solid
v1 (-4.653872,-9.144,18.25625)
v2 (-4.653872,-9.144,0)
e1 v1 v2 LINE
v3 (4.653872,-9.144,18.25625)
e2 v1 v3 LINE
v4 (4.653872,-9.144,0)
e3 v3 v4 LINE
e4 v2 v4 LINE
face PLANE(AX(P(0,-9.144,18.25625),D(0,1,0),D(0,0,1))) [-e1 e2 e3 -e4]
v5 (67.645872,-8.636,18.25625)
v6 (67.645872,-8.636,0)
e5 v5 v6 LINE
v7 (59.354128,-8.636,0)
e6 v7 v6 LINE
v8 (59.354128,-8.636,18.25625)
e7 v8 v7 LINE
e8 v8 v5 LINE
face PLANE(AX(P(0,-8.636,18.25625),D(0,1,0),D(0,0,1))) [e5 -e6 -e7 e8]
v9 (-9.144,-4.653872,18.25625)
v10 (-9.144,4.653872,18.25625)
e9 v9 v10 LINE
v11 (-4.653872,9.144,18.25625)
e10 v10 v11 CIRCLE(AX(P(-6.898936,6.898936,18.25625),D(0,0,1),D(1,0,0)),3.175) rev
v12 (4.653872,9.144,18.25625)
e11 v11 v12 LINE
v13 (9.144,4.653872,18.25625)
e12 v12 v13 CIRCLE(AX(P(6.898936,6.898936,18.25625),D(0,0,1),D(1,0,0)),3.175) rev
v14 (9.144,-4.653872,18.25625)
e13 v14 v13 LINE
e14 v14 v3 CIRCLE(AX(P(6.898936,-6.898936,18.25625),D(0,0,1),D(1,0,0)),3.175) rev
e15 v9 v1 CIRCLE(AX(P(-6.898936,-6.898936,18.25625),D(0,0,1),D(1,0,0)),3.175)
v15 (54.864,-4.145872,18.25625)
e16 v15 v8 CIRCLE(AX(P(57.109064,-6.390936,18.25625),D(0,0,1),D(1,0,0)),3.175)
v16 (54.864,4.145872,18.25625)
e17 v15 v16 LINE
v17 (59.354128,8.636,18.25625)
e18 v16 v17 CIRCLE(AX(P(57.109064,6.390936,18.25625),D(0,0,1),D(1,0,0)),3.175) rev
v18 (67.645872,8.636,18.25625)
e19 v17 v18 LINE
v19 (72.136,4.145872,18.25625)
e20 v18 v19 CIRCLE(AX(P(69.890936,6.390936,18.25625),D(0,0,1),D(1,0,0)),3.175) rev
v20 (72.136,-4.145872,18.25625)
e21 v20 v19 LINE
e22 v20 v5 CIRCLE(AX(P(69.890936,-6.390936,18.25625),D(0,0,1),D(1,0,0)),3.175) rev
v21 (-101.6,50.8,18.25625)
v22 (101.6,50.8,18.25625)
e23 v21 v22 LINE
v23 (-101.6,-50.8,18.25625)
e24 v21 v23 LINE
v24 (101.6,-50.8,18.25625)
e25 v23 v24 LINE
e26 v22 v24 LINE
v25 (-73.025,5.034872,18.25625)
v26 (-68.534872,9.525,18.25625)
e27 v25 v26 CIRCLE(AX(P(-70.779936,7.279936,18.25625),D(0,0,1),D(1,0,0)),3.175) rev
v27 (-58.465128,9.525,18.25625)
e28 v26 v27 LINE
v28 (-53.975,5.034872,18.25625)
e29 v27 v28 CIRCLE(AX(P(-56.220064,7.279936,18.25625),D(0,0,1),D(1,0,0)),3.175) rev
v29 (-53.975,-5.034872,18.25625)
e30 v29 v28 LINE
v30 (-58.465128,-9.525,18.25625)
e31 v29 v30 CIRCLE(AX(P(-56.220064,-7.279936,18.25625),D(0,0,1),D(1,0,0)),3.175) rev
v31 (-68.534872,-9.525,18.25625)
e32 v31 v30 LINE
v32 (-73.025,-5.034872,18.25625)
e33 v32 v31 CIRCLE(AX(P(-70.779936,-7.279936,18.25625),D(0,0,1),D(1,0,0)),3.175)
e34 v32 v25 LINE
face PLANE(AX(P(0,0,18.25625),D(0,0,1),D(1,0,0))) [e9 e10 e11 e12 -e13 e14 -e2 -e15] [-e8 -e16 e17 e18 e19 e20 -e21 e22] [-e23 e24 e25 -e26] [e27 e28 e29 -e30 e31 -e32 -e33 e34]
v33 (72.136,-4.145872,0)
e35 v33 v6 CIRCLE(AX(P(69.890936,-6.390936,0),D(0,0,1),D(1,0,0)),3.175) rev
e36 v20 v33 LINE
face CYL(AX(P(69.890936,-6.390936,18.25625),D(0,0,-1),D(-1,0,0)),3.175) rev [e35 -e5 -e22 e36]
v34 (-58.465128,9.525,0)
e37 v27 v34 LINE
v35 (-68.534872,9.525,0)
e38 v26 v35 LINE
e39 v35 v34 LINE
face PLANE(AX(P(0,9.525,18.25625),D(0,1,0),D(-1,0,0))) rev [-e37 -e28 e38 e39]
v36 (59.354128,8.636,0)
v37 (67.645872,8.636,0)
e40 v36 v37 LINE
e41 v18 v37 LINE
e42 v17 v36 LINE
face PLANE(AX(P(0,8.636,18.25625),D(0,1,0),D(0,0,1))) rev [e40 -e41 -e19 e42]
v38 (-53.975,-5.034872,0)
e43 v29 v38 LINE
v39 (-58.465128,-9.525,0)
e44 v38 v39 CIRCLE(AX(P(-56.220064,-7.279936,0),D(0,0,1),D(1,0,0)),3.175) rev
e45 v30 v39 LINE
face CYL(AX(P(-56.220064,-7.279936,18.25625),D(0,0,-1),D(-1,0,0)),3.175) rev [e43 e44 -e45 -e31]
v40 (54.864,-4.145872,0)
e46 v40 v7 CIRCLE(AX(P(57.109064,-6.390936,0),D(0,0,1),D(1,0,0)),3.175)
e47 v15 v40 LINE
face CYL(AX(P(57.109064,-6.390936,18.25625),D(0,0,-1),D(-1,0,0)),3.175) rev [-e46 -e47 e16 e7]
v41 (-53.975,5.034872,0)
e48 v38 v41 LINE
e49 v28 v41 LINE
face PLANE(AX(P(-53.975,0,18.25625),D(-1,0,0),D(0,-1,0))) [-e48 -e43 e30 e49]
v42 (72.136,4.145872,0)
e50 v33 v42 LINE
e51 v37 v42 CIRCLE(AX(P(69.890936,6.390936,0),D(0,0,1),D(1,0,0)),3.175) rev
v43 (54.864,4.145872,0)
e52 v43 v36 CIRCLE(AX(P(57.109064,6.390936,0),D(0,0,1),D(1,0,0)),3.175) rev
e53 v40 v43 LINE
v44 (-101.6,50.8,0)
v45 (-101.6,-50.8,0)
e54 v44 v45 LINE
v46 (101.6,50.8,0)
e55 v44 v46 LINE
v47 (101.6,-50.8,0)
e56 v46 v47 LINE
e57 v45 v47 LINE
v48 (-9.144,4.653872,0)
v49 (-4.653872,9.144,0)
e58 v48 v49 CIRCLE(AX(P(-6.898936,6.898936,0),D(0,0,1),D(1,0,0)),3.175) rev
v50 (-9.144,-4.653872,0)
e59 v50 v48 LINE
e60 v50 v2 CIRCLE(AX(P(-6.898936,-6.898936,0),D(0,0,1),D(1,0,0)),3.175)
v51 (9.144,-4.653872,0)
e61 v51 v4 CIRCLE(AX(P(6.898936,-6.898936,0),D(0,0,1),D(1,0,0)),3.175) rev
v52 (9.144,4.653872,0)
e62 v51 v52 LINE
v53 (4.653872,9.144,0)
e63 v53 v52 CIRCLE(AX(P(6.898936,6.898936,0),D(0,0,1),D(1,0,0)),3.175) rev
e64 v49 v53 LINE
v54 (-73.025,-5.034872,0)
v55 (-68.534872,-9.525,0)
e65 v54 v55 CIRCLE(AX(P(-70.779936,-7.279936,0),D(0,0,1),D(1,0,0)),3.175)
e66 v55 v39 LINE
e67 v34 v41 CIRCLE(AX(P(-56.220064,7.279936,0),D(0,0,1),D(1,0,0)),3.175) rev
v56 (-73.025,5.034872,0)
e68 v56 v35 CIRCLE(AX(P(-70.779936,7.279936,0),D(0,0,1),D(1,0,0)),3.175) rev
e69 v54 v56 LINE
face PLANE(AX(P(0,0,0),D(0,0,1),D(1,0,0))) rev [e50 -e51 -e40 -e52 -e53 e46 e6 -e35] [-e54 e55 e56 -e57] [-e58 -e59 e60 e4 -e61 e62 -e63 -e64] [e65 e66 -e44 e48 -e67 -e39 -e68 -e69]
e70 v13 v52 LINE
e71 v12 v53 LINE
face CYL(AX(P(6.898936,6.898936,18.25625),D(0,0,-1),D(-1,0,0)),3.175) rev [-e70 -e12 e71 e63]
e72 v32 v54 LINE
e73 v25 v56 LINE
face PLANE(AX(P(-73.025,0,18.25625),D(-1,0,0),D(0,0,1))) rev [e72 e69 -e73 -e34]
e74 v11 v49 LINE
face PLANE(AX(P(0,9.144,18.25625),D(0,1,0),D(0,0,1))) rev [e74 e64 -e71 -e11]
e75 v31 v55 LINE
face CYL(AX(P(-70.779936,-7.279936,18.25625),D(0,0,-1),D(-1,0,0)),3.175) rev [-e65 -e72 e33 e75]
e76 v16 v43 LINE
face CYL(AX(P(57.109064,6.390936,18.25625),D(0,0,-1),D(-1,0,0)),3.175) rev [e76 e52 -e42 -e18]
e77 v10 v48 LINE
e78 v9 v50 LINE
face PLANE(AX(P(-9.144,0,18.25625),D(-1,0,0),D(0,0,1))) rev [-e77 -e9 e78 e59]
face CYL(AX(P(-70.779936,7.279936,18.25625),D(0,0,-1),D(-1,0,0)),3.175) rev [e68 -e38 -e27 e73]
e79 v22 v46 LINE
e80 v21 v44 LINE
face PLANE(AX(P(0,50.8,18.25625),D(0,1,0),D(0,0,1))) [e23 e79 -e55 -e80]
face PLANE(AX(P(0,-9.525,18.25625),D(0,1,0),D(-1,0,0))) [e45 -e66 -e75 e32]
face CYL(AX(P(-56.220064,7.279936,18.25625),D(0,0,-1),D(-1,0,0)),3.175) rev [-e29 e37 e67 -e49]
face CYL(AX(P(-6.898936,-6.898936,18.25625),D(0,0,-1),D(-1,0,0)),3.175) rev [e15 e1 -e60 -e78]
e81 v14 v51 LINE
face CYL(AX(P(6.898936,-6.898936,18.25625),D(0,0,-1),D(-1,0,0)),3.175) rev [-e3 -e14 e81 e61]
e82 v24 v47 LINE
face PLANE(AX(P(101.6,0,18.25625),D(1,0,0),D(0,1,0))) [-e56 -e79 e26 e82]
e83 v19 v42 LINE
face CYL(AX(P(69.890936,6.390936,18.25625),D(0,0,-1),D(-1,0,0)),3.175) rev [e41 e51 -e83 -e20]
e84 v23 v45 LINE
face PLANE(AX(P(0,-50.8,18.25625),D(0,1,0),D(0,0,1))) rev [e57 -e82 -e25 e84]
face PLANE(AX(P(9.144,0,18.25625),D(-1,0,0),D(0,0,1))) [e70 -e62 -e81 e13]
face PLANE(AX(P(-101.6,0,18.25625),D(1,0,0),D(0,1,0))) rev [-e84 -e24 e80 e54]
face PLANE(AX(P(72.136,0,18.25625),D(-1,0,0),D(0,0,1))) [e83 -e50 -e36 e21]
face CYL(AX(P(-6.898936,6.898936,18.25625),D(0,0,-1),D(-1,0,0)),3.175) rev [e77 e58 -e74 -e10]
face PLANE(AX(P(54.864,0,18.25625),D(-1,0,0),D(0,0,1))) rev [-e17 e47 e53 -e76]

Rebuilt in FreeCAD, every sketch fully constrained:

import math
import FreeCAD as App
import Part
import Sketcher
from FreeCAD import Vector
Q = App.Units.Quantity


def add_polygon(sketch, points):
    """Adds a closed chain of lines whose ends are joined by coincident constraints."""
    first, n = sketch.GeometryCount, len(points)
    for a, b in zip(points, points[1:] + points[:1]):
        sketch.addGeometry(Part.LineSegment(App.Vector(*a, 0), App.Vector(*b, 0)), False)
    for i in range(n):
        sketch.addConstraint(Sketcher.Constraint("Coincident", first + i, 2, first + (i + 1) % n, 1))

doc = App.newDocument("Part")
body = doc.addObject("PartDesign::Body", "Body")

# Sketch on XY plane
sketch1 = body.newObject("Sketcher::SketchObject", "Sketch")
sketch1.AttachmentSupport = (doc.getObject("XY_Plane"), [""])
sketch1.MapMode = "FlatFace"
add_polygon(sketch1, [(-101.6, 50.8), (-101.6, -50.8), (101.6, -50.8), (101.6, 50.8)])  # lines 0-3
sketch1.addGeometry(Part.LineSegment(Vector(-58.5, -9.5, 0), Vector(-68.5, -9.5, 0)), False)  # 4
sketch1.addGeometry(Part.ArcOfCircle(Part.Circle(Vector(-70.8, -7.3, 0), Vector(0, 0, 1), 3.2), math.radians(-135), math.radians(-45)), False)  # 5
sketch1.addGeometry(Part.ArcOfCircle(Part.Circle(Vector(-70.8, -7.3, 0), Vector(0, 0, 1), 3.2), math.radians(135), math.radians(225)), False)  # 6
sketch1.addGeometry(Part.LineSegment(Vector(-73, -5, 0), Vector(-73, 5, 0)), False)  # 7
sketch1.addGeometry(Part.ArcOfCircle(Part.Circle(Vector(-70.8, 7.3, 0), Vector(0, 0, 1), 3.2), math.radians(135), math.radians(225)), False)  # 8
sketch1.addGeometry(Part.ArcOfCircle(Part.Circle(Vector(-70.8, 7.3, 0), Vector(0, 0, 1), 3.2), math.radians(45), math.radians(135)), False)  # 9
sketch1.addGeometry(Part.LineSegment(Vector(-68.5, 9.5, 0), Vector(-58.5, 9.5, 0)), False)  # 10
sketch1.addGeometry(Part.ArcOfCircle(Part.Circle(Vector(-56.2, 7.3, 0), Vector(0, 0, 1), 3.2), math.radians(45), math.radians(135)), False)  # 11
sketch1.addGeometry(Part.ArcOfCircle(Part.Circle(Vector(-56.2, 7.3, 0), Vector(0, 0, 1), 3.2), math.radians(-45), math.radians(45)), False)  # 12
sketch1.addGeometry(Part.LineSegment(Vector(-54, 5, 0), Vector(-54, -5, 0)), False)  # 13
sketch1.addGeometry(Part.ArcOfCircle(Part.Circle(Vector(-56.2, -7.3, 0), Vector(0, 0, 1), 3.2), math.radians(-45), math.radians(45)), False)  # 14
sketch1.addGeometry(Part.ArcOfCircle(Part.Circle(Vector(-56.2, -7.3, 0), Vector(0, 0, 1), 3.2), math.radians(-135), math.radians(-45)), False)  # 15
sketch1.addGeometry(Part.LineSegment(Vector(4.7, -9.1, 0), Vector(-4.7, -9.1, 0)), False)  # 16
sketch1.addGeometry(Part.ArcOfCircle(Part.Circle(Vector(-6.9, -6.9, 0), Vector(0, 0, 1), 3.2), math.radians(-135), math.radians(-45)), False)  # 17
sketch1.addGeometry(Part.ArcOfCircle(Part.Circle(Vector(-6.9, -6.9, 0), Vector(0, 0, 1), 3.2), math.radians(135), math.radians(225)), False)  # 18
sketch1.addGeometry(Part.LineSegment(Vector(-9.1, -4.7, 0), Vector(-9.1, 4.7, 0)), False)  # 19
sketch1.addGeometry(Part.ArcOfCircle(Part.Circle(Vector(-6.9, 6.9, 0), Vector(0, 0, 1), 3.2), math.radians(135), math.radians(225)), False)  # 20
sketch1.addGeometry(Part.ArcOfCircle(Part.Circle(Vector(-6.9, 6.9, 0), Vector(0, 0, 1), 3.2), math.radians(45), math.radians(135)), False)  # 21
sketch1.addGeometry(Part.LineSegment(Vector(-4.7, 9.1, 0), Vector(4.7, 9.1, 0)), False)  # 22
sketch1.addGeometry(Part.ArcOfCircle(Part.Circle(Vector(6.9, 6.9, 0), Vector(0, 0, 1), 3.2), math.radians(45), math.radians(135)), False)  # 23
sketch1.addGeometry(Part.ArcOfCircle(Part.Circle(Vector(6.9, 6.9, 0), Vector(0, 0, 1), 3.2), math.radians(-45), math.radians(45)), False)  # 24
sketch1.addGeometry(Part.LineSegment(Vector(9.1, 4.7, 0), Vector(9.1, -4.7, 0)), False)  # 25
sketch1.addGeometry(Part.ArcOfCircle(Part.Circle(Vector(6.9, -6.9, 0), Vector(0, 0, 1), 3.2), math.radians(-45), math.radians(45)), False)  # 26
sketch1.addGeometry(Part.ArcOfCircle(Part.Circle(Vector(6.9, -6.9, 0), Vector(0, 0, 1), 3.2), math.radians(-135), math.radians(-45)), False)  # 27
sketch1.addGeometry(Part.LineSegment(Vector(67.6, -8.6, 0), Vector(59.4, -8.6, 0)), False)  # 28
sketch1.addGeometry(Part.ArcOfCircle(Part.Circle(Vector(57.1, -6.4, 0), Vector(0, 0, 1), 3.2), math.radians(-135), math.radians(-45)), False)  # 29
sketch1.addGeometry(Part.ArcOfCircle(Part.Circle(Vector(57.1, -6.4, 0), Vector(0, 0, 1), 3.2), math.radians(135), math.radians(225)), False)  # 30
sketch1.addGeometry(Part.LineSegment(Vector(54.9, -4.1, 0), Vector(54.9, 4.1, 0)), False)  # 31
sketch1.addGeometry(Part.ArcOfCircle(Part.Circle(Vector(57.1, 6.4, 0), Vector(0, 0, 1), 3.2), math.radians(135), math.radians(225)), False)  # 32
sketch1.addGeometry(Part.ArcOfCircle(Part.Circle(Vector(57.1, 6.4, 0), Vector(0, 0, 1), 3.2), math.radians(45), math.radians(135)), False)  # 33
sketch1.addGeometry(Part.LineSegment(Vector(59.4, 8.6, 0), Vector(67.6, 8.6, 0)), False)  # 34
sketch1.addGeometry(Part.ArcOfCircle(Part.Circle(Vector(69.9, 6.4, 0), Vector(0, 0, 1), 3.2), math.radians(45), math.radians(135)), False)  # 35
sketch1.addGeometry(Part.ArcOfCircle(Part.Circle(Vector(69.9, 6.4, 0), Vector(0, 0, 1), 3.2), math.radians(-45), math.radians(45)), False)  # 36
sketch1.addGeometry(Part.LineSegment(Vector(72.1, 4.1, 0), Vector(72.1, -4.1, 0)), False)  # 37
sketch1.addGeometry(Part.ArcOfCircle(Part.Circle(Vector(69.9, -6.4, 0), Vector(0, 0, 1), 3.2), math.radians(-45), math.radians(45)), False)  # 38
sketch1.addGeometry(Part.ArcOfCircle(Part.Circle(Vector(69.9, -6.4, 0), Vector(0, 0, 1), 3.2), math.radians(-135), math.radians(-45)), False)  # 39
sketch1.addConstraint(Sketcher.Constraint("Coincident", 4, 2, 5, 2))
sketch1.addConstraint(Sketcher.Constraint("Tangent", 5, 1, 6, 2))
sketch1.addConstraint(Sketcher.Constraint("Coincident", 6, 1, 7, 1))
sketch1.addConstraint(Sketcher.Constraint("Coincident", 7, 2, 8, 2))
sketch1.addConstraint(Sketcher.Constraint("Tangent", 8, 1, 9, 2))
sketch1.addConstraint(Sketcher.Constraint("Coincident", 9, 1, 10, 1))
sketch1.addConstraint(Sketcher.Constraint("Coincident", 10, 2, 11, 2))
sketch1.addConstraint(Sketcher.Constraint("Tangent", 11, 1, 12, 2))
sketch1.addConstraint(Sketcher.Constraint("Coincident", 12, 1, 13, 1))
sketch1.addConstraint(Sketcher.Constraint("Coincident", 13, 2, 14, 2))
sketch1.addConstraint(Sketcher.Constraint("Tangent", 14, 1, 15, 2))
sketch1.addConstraint(Sketcher.Constraint("Coincident", 15, 1, 4, 1))
sketch1.addConstraint(Sketcher.Constraint("Coincident", 16, 2, 17, 2))
sketch1.addConstraint(Sketcher.Constraint("Tangent", 17, 1, 18, 2))
sketch1.addConstraint(Sketcher.Constraint("Coincident", 18, 1, 19, 1))
sketch1.addConstraint(Sketcher.Constraint("Coincident", 19, 2, 20, 2))
sketch1.addConstraint(Sketcher.Constraint("Tangent", 20, 1, 21, 2))
sketch1.addConstraint(Sketcher.Constraint("Coincident", 21, 1, 22, 1))
sketch1.addConstraint(Sketcher.Constraint("Coincident", 22, 2, 23, 2))
sketch1.addConstraint(Sketcher.Constraint("Tangent", 23, 1, 24, 2))
sketch1.addConstraint(Sketcher.Constraint("Coincident", 24, 1, 25, 1))
sketch1.addConstraint(Sketcher.Constraint("Coincident", 25, 2, 26, 2))
sketch1.addConstraint(Sketcher.Constraint("Tangent", 26, 1, 27, 2))
sketch1.addConstraint(Sketcher.Constraint("Coincident", 27, 1, 16, 1))
sketch1.addConstraint(Sketcher.Constraint("Coincident", 28, 2, 29, 2))
sketch1.addConstraint(Sketcher.Constraint("Tangent", 29, 1, 30, 2))
sketch1.addConstraint(Sketcher.Constraint("Coincident", 30, 1, 31, 1))
sketch1.addConstraint(Sketcher.Constraint("Coincident", 31, 2, 32, 2))
sketch1.addConstraint(Sketcher.Constraint("Tangent", 32, 1, 33, 2))
sketch1.addConstraint(Sketcher.Constraint("Coincident", 33, 1, 34, 1))
sketch1.addConstraint(Sketcher.Constraint("Coincident", 34, 2, 35, 2))
sketch1.addConstraint(Sketcher.Constraint("Tangent", 35, 1, 36, 2))
sketch1.addConstraint(Sketcher.Constraint("Coincident", 36, 1, 37, 1))
sketch1.addConstraint(Sketcher.Constraint("Coincident", 37, 2, 38, 2))
sketch1.addConstraint(Sketcher.Constraint("Tangent", 38, 1, 39, 2))
sketch1.addConstraint(Sketcher.Constraint("Coincident", 39, 1, 28, 1))
sketch1.addConstraint(Sketcher.Constraint("Vertical", 0))
sketch1.addConstraint(Sketcher.Constraint("Horizontal", 1))
sketch1.addConstraint(Sketcher.Constraint("Vertical", 2))
sketch1.addConstraint(Sketcher.Constraint("Horizontal", 3))
sketch1.addConstraint(Sketcher.Constraint("Horizontal", 4))
sketch1.addConstraint(Sketcher.Constraint("Vertical", 7))
sketch1.addConstraint(Sketcher.Constraint("Horizontal", 10))
sketch1.addConstraint(Sketcher.Constraint("Vertical", 13))
sketch1.addConstraint(Sketcher.Constraint("Horizontal", 16))
sketch1.addConstraint(Sketcher.Constraint("Vertical", 19))
sketch1.addConstraint(Sketcher.Constraint("Horizontal", 22))
sketch1.addConstraint(Sketcher.Constraint("Vertical", 25))
sketch1.addConstraint(Sketcher.Constraint("Horizontal", 28))
sketch1.addConstraint(Sketcher.Constraint("Vertical", 31))
sketch1.addConstraint(Sketcher.Constraint("Horizontal", 34))
sketch1.addConstraint(Sketcher.Constraint("Vertical", 37))
sketch1.addConstraint(Sketcher.Constraint("Equal", 5, 6))
sketch1.addConstraint(Sketcher.Constraint("Equal", 6, 8))
sketch1.addConstraint(Sketcher.Constraint("Equal", 8, 9))
sketch1.addConstraint(Sketcher.Constraint("Equal", 9, 11))
sketch1.addConstraint(Sketcher.Constraint("Equal", 11, 12))
sketch1.addConstraint(Sketcher.Constraint("Equal", 12, 14))
sketch1.addConstraint(Sketcher.Constraint("Equal", 14, 15))
sketch1.addConstraint(Sketcher.Constraint("Equal", 15, 17))
sketch1.addConstraint(Sketcher.Constraint("Equal", 17, 18))
sketch1.addConstraint(Sketcher.Constraint("Equal", 18, 20))
sketch1.addConstraint(Sketcher.Constraint("Equal", 20, 21))
sketch1.addConstraint(Sketcher.Constraint("Equal", 21, 23))
sketch1.addConstraint(Sketcher.Constraint("Equal", 23, 24))
sketch1.addConstraint(Sketcher.Constraint("Equal", 24, 26))
sketch1.addConstraint(Sketcher.Constraint("Equal", 26, 27))
sketch1.addConstraint(Sketcher.Constraint("Equal", 27, 29))
sketch1.addConstraint(Sketcher.Constraint("Equal", 29, 30))
sketch1.addConstraint(Sketcher.Constraint("Equal", 30, 32))
sketch1.addConstraint(Sketcher.Constraint("Equal", 32, 33))
sketch1.addConstraint(Sketcher.Constraint("Equal", 33, 35))
sketch1.addConstraint(Sketcher.Constraint("Equal", 35, 36))
sketch1.addConstraint(Sketcher.Constraint("Equal", 36, 38))
sketch1.addConstraint(Sketcher.Constraint("Equal", 38, 39))
sketch1.addConstraint(Sketcher.Constraint("Symmetric", 17, 3, 23, 3, -1, 1))
sketch1.addConstraint(Sketcher.Constraint("Symmetric", 20, 3, 26, 3, -1, 1))
sketch1.addConstraint(Sketcher.Constraint("Symmetric", 0, 2, 2, 2, -1, 1))
sketch1.addConstraint(Sketcher.Constraint("Symmetric", 20, 3, 23, 3, -2))
sketch1.addConstraint(Sketcher.Constraint("Symmetric", 5, 3, 8, 3, -1))
sketch1.addConstraint(Sketcher.Constraint("Symmetric", 11, 3, 14, 3, -1))
sketch1.addConstraint(Sketcher.Constraint("Symmetric", 29, 3, 32, 3, -1))
sketch1.addConstraint(Sketcher.Constraint("Symmetric", 35, 3, 38, 3, -1))
sketch1.addConstraint(Sketcher.Constraint("Horizontal", 9, 3, 11, 3))
sketch1.addConstraint(Sketcher.Constraint("Horizontal", 33, 3, 35, 3))
sketch1.addConstraint(Sketcher.Constraint("Horizontal", 4, 2, 5, 1))
sketch1.addConstraint(Sketcher.Constraint("Horizontal", 8, 1, 9, 1))
sketch1.addConstraint(Sketcher.Constraint("Horizontal", 10, 2, 11, 1))
sketch1.addConstraint(Sketcher.Constraint("Horizontal", 7, 2, 12, 1))
sketch1.addConstraint(Sketcher.Constraint("Horizontal", 5, 1, 14, 1))
sketch1.addConstraint(Sketcher.Constraint("Horizontal", 16, 2, 17, 1))
sketch1.addConstraint(Sketcher.Constraint("Horizontal", 20, 1, 21, 1))
sketch1.addConstraint(Sketcher.Constraint("Horizontal", 22, 2, 23, 1))
sketch1.addConstraint(Sketcher.Constraint("Horizontal", 19, 2, 24, 1))
sketch1.addConstraint(Sketcher.Constraint("Horizontal", 17, 1, 26, 1))
sketch1.addConstraint(Sketcher.Constraint("Horizontal", 28, 2, 29, 1))
sketch1.addConstraint(Sketcher.Constraint("Horizontal", 32, 1, 33, 1))
sketch1.addConstraint(Sketcher.Constraint("Horizontal", 34, 2, 35, 1))
sketch1.addConstraint(Sketcher.Constraint("Horizontal", 31, 2, 36, 1))
sketch1.addConstraint(Sketcher.Constraint("Horizontal", 29, 1, 38, 1))
sketch1.addConstraint(Sketcher.Constraint("Vertical", 5, 1, 6, 1))
sketch1.addConstraint(Sketcher.Constraint("Vertical", 7, 2, 8, 1))
sketch1.addConstraint(Sketcher.Constraint("Vertical", 17, 1, 18, 1))
sketch1.addConstraint(Sketcher.Constraint("Vertical", 19, 2, 20, 1))
sketch1.addConstraint(Sketcher.Constraint("Vertical", 29, 1, 30, 1))
sketch1.addConstraint(Sketcher.Constraint("Vertical", 31, 2, 32, 1))
sketch1.addConstraint(Sketcher.Constraint("Equal", 10, 7))
sketch1.addConstraint(Sketcher.Constraint("Equal", 22, 19))
sketch1.addConstraint(Sketcher.Constraint("Equal", 34, 31))
sketch1.addConstraint(Sketcher.Constraint("DistanceX", 1, 1, 1, 2, Q("8 in")))
sketch1.addConstraint(Sketcher.Constraint("DistanceY", 0, 2, 0, 1, Q("4 in")))
sketch1.addConstraint(Sketcher.Constraint("Radius", 5, Q("0.125 in")))
sketch1.addConstraint(Sketcher.Constraint("DistanceY", 16, 2, -1, 1, Q("0.36 in")))
sketch1.addConstraint(Sketcher.Constraint("DistanceX", 17, 1, -1, 1, Q("0.36 in")))
sketch1.addConstraint(Sketcher.Constraint("DistanceY", 28, 2, -1, 1, Q("0.34 in")))
sketch1.addConstraint(Sketcher.Constraint("DistanceX", -1, 1, 29, 1, Q("2.16 in")))
sketch1.addConstraint(Sketcher.Constraint("DistanceX", -1, 1, 35, 1, Q("2.84 in")))
sketch1.addConstraint(Sketcher.Constraint("DistanceY", 4, 2, -1, 1, Q("0.375 in")))
sketch1.addConstraint(Sketcher.Constraint("DistanceX", 5, 1, -1, 1, Q("2.875 in")))
sketch1.addConstraint(Sketcher.Constraint("DistanceX", 11, 1, -1, 1, Q("2.125 in")))
pad1 = body.newObject("PartDesign::Pad", "Pad")
pad1.Profile = sketch1
pad1.Length = Q("0.71875 in")

doc.recompute()
